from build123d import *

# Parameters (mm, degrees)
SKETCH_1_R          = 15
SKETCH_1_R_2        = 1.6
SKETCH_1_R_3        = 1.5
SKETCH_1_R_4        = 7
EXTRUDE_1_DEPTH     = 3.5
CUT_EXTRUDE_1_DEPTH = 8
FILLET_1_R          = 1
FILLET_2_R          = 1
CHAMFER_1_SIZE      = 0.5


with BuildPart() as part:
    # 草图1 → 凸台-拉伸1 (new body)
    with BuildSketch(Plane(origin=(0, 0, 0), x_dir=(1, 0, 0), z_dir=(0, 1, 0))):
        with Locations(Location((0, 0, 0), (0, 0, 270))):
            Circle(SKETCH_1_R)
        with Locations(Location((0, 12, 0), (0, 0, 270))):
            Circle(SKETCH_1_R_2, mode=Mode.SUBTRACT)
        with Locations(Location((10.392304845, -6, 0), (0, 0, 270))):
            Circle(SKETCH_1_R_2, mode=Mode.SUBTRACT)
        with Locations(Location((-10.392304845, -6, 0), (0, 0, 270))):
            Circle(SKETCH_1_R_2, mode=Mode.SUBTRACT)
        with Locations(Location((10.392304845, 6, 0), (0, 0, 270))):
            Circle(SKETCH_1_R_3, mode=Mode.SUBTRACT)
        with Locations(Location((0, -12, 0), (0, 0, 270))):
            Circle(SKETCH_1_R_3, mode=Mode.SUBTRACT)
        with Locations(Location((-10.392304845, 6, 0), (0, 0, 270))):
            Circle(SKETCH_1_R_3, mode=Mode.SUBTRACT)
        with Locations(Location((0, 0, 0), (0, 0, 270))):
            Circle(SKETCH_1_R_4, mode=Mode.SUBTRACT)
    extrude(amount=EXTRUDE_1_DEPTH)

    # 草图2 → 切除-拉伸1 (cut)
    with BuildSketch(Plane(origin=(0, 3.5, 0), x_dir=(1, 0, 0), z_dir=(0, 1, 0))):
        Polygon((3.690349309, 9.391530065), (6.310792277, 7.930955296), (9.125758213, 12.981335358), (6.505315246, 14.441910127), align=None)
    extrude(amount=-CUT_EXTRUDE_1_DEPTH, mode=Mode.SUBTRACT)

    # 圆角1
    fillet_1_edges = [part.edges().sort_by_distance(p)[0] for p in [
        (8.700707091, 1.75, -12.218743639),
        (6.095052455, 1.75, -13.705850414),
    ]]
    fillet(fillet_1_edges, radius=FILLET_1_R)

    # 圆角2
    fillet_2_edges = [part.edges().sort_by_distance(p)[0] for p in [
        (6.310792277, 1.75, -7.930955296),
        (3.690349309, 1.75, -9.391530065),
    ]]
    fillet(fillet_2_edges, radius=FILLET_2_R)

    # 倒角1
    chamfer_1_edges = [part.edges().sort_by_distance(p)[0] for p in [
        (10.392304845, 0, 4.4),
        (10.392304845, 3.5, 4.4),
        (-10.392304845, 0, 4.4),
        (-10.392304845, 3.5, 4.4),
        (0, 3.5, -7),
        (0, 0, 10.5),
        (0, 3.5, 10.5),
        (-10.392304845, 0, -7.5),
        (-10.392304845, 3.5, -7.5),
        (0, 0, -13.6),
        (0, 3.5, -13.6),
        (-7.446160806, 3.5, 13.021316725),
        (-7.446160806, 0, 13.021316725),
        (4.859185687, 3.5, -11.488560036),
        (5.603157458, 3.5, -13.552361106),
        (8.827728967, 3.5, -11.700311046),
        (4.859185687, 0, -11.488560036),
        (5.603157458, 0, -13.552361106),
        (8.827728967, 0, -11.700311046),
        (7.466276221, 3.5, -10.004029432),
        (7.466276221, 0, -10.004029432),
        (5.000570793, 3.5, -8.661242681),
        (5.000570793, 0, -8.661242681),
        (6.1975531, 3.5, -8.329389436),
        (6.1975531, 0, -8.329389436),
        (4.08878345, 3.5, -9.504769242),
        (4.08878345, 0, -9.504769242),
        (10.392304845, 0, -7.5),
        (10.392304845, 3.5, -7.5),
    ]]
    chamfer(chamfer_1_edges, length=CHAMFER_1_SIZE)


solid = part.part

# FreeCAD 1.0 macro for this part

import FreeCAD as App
import Part
import Sketcher

V = App.Vector


def edges_at(feature, points):
    """Names of the edges that pass closest to the given points."""
    edges = feature.Shape.Edges
    near = lambda p: min(range(len(edges)), key=lambda i: edges[i].distToShape(Part.Vertex(*p))[0])
    return sorted({f"Edge{near(p) + 1}" for p in points})


def add_polygon(sketch, points):
    """Adds a closed chain of lines whose ends are joined by coincident constraints."""
    first, n = sketch.GeometryCount, len(points)
    for a, b in zip(points, points[1:] + points[:1]):
        sketch.addGeometry(Part.LineSegment(App.Vector(*a, 0), App.Vector(*b, 0)), False)
    for i in range(n):
        sketch.addConstraint(Sketcher.Constraint("Coincident", first + i, 2, first + (i + 1) % n, 1))

doc = App.newDocument("Part")
body = doc.addObject("PartDesign::Body", "Body")

sketch1 = body.newObject("Sketcher::SketchObject", "Sketch")
sketch1.AttachmentSupport = (doc.getObject("XZ_Plane"), [""])
sketch1.MapMode = "FlatFace"
sketch1.addGeometry([
    Part.Circle(V(0, 0, 0), V(0, 0, 1), 15),
    Part.Circle(V(-10.392305, -6, 0), V(0, 0, 1), 1.5),
    Part.Circle(V(0, -12, 0), V(0, 0, 1), 1.6),
    Part.Circle(V(-10.392305, 6, 0), V(0, 0, 1), 1.6),
    Part.Circle(V(0, 0, 0), V(0, 0, 1), 7),
    Part.Circle(V(10.392305, -6, 0), V(0, 0, 1), 1.5),
    Part.Circle(V(0, 12, 0), V(0, 0, 1), 1.5),
    Part.Circle(V(10.392305, 6, 0), V(0, 0, 1), 1.6),
], False)
sketch1.addConstraint([
    Sketcher.Constraint("Coincident", 0, 3, -1, 1),
    Sketcher.Constraint("Coincident", 4, 3, -1, 1),
    Sketcher.Constraint("Equal", 2, 3),
    Sketcher.Constraint("Equal", 1, 5),
    Sketcher.Constraint("Equal", 5, 6),
    Sketcher.Constraint("Equal", 3, 7),
    Sketcher.Constraint("Symmetric", 3, 3, 5, 3, -1, 1),
    Sketcher.Constraint("Symmetric", 2, 3, 6, 3, -1, 1),
    Sketcher.Constraint("Symmetric", 1, 3, 7, 3, -1, 1),
    Sketcher.Constraint("Symmetric", 1, 3, 5, 3, -2),
    Sketcher.Constraint("PointOnObject", 2, 3, -2),
    Sketcher.Constraint("Diameter", 0, 30.0),
    Sketcher.Constraint("Diameter", 1, 3.0),
    Sketcher.Constraint("Diameter", 4, 14.0),
    Sketcher.Constraint("Diameter", 2, 3.2),
    Sketcher.Constraint("DistanceY", 1, 3, -1, 1, 6.0),
    Sketcher.Constraint("DistanceY", 2, 3, -1, 1, 12.0),
    Sketcher.Constraint("DistanceX", 1, 3, 5, 3, 20.78461),
])
pad1 = body.newObject("PartDesign::Pad", "Pad")
pad1.Profile = sketch1
pad1.Length = 3.5
pad1.Reversed = True

sketch2 = body.newObject("Sketcher::SketchObject", "Sketch001")
sketch2.AttachmentSupport = (doc.getObject("XZ_Plane"), [""])
sketch2.MapMode = "FlatFace"
sketch2.AttachmentOffset = App.Placement(V(0, 0, -3.5), App.Rotation())
add_polygon(sketch2, [(3.690349, -9.39153), (6.310792, -7.930955), (9.125758, -12.981335), (6.505315, -14.44191)])
sketch2.addConstraint([
    Sketcher.Constraint("Perpendicular", 0, 1),
    Sketcher.Constraint("Perpendicular", 1, 2),
    Sketcher.Constraint("Perpendicular", 2, 3),
    Sketcher.Constraint("Distance", 0, 3.0),
    Sketcher.Constraint("Distance", 1, 5.7819),
    Sketcher.Constraint("DistanceX", -1, 1, 1, 2, 9.125758),
    Sketcher.Constraint("DistanceY", 2, 2, -1, 1, 14.44191),
    Sketcher.Constraint("DistanceX", -1, 1, 3, 2, 3.690349),
])
pocket1 = body.newObject("PartDesign::Pocket", "Pocket")
pocket1.Profile = sketch2
pocket1.Length = 8
pocket1.Reversed = True
doc.recompute()

fillet = body.newObject("PartDesign::Fillet", "Fillet")
fillet.Base = (pocket1, edges_at(pocket1, [(8.701, 1.75, -12.219), (6.095, 1.75, -13.706)]))
fillet.Radius = 1
doc.recompute()

fillet2 = body.newObject("PartDesign::Fillet", "Fillet001")
fillet2.Base = (fillet, edges_at(fillet, [(6.311, 1.75, -7.931), (3.69, 1.75, -9.392)]))
fillet2.Radius = 1
doc.recompute()

chamfer = body.newObject("PartDesign::Chamfer", "Chamfer")
chamfer.Base = (fillet2, edges_at(fillet2, [
    (10.392, 0, 4.4),
    (10.392, 3.5, 4.4),
    (-10.392, 0, 4.4),
    (-10.392, 3.5, 4.4),
    (0, 3.5, -7),
    (0, 0, 10.5),
    (0, 3.5, 10.5),
    (-10.392, 0, -7.5),
    (-10.392, 3.5, -7.5),
    (0, 0, -13.6),
    (0, 3.5, -13.6),
    (-7.446, 3.5, 13.021),
    (-7.446, 0, 13.021),
    (4.859, 3.5, -11.489),
    (5.603, 3.5, -13.552),
    (8.828, 3.5, -11.7),
    (4.859, 0, -11.489),
    (5.603, 0, -13.552),
    (8.828, 0, -11.7),
    (7.466, 3.5, -10.004),
    (7.466, 0, -10.004),
    (5.001, 3.5, -8.661),
    (5.001, 0, -8.661),
    (6.198, 3.5, -8.329),
    (6.198, 0, -8.329),
    (4.089, 3.5, -9.505),
    (4.089, 0, -9.505),
    (10.392, 0, -7.5),
    (10.392, 3.5, -7.5),
]))
chamfer.Size = 0.5

doc.recompute()
